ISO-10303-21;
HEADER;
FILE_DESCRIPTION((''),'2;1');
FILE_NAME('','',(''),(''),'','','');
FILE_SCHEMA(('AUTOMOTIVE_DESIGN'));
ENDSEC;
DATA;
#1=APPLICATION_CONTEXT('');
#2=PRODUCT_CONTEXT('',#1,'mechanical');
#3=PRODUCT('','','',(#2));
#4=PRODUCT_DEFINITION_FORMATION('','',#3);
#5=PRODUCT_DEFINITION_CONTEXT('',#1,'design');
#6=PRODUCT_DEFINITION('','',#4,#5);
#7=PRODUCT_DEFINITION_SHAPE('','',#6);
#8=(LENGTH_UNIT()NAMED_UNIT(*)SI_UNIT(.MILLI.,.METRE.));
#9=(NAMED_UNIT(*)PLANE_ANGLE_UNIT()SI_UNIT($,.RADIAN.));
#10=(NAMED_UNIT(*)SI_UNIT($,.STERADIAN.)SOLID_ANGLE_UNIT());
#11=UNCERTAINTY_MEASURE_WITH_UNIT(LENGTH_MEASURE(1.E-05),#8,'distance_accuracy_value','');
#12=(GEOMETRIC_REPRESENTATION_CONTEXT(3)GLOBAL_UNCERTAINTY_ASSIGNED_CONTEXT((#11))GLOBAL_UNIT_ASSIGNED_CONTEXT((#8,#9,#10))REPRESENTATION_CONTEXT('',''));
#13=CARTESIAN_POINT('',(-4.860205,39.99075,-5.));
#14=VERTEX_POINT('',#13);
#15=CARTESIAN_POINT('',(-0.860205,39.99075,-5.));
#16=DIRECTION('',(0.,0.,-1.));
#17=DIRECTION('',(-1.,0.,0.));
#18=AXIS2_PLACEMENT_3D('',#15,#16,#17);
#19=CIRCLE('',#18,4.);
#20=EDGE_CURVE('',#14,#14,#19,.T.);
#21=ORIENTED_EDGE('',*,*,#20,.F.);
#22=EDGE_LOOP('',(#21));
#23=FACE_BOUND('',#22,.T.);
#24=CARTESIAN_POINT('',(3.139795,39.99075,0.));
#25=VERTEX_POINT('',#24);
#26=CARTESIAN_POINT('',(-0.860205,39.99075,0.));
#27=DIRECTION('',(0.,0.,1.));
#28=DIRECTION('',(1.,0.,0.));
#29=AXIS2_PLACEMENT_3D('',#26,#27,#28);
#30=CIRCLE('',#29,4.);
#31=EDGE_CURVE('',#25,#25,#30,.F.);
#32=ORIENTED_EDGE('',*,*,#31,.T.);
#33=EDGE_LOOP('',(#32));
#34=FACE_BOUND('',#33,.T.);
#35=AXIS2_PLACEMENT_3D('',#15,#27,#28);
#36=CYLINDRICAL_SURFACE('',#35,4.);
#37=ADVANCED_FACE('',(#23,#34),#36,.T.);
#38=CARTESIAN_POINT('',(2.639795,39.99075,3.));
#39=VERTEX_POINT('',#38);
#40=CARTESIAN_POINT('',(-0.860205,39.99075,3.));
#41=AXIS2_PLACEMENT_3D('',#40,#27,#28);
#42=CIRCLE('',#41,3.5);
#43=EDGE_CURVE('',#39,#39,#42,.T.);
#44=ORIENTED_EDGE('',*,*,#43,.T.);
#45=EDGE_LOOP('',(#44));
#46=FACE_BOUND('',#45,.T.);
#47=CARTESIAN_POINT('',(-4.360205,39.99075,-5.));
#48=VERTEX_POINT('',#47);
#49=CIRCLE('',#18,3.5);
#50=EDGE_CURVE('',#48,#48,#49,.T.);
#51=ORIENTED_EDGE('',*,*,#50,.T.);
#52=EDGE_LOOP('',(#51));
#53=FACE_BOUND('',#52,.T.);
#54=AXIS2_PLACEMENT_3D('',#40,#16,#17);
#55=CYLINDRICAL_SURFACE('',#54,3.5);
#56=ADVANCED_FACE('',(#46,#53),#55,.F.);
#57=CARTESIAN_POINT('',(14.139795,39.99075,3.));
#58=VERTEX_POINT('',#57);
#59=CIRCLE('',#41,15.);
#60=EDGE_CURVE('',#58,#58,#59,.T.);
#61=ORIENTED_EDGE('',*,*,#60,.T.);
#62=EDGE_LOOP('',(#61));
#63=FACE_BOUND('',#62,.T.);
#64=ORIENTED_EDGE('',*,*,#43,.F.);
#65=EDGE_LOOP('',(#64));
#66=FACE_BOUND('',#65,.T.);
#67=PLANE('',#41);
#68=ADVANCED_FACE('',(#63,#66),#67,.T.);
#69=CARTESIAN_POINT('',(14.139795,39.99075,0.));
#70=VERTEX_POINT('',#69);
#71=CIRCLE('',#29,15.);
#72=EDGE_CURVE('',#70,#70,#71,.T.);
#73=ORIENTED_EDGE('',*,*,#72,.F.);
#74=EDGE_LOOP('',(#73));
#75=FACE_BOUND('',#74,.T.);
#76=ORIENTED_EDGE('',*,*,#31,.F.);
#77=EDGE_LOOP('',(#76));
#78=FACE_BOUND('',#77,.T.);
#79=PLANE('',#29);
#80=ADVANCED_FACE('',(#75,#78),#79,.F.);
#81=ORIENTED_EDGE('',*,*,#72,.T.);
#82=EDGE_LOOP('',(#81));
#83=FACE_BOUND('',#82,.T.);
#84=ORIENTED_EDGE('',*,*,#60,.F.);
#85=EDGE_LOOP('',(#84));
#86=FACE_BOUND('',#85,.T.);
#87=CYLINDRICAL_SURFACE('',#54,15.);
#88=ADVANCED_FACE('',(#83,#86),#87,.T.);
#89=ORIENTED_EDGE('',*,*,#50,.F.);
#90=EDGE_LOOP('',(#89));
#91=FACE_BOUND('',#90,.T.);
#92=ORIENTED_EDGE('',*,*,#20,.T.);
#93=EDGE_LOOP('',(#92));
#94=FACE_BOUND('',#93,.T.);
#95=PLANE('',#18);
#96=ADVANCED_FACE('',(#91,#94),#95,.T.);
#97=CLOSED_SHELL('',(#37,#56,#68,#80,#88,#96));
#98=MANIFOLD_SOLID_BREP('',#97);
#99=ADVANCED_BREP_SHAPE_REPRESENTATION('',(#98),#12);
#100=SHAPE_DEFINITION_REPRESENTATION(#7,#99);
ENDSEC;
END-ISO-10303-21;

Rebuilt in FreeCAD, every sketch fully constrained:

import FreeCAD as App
import Part
import Sketcher
Q = App.Units.Quantity

doc = App.newDocument("Part")
body = doc.addObject("PartDesign::Body", "Body")

# Sketch on XY plane
sketch1 = doc.addObject("Sketcher::SketchObject", "Sketch")
body.addObject(sketch1)
sketch1.AttachmentSupport = (doc.XY_Plane, [""])
sketch1.MapMode = "FlatFace"
sketch1.addGeometry([
    Part.Circle(App.Vector(-0.9, 40, 0), App.Vector(0, 0, 1), 15),
    Part.Circle(App.Vector(-0.9, 40, 0), App.Vector(0, 0, 1), 4),
], False)
sketch1.addConstraint([
    Sketcher.Constraint("Coincident", 1, 3, 0, 3),
    Sketcher.Constraint("Diameter", 0, Q("30 mm")),
    Sketcher.Constraint("Diameter", 1, Q("8 mm")),
    Sketcher.Constraint("DistanceY", -1, 1, 0, 3, Q("39.99075 mm")),
    Sketcher.Constraint("DistanceX", 0, 3, -1, 1, Q("0.860205 mm")),
])
pad1 = doc.addObject("PartDesign::Pad", "Pad")
body.addObject(pad1)
pad1.Profile = sketch1
pad1.Length = 3
body2 = doc.addObject("PartDesign::Body", "Body001")

# Sketch on XY plane
sketch2 = doc.addObject("Sketcher::SketchObject", "Sketch001")
body2.addObject(sketch2)
sketch2.AttachmentSupport = (doc.getObject("XY_Plane001"), [""])
sketch2.MapMode = "FlatFace"
sketch2.addGeometry([
    Part.Circle(App.Vector(-0.9, 40, 0), App.Vector(0, 0, 1), 4),
    Part.Circle(App.Vector(-0.9, 40, 0), App.Vector(0, 0, 1), 3.5),
], False)
sketch2.addConstraint([
    Sketcher.Constraint("Coincident", 1, 3, 0, 3),
    Sketcher.Constraint("Diameter", 0, Q("8 mm")),
    Sketcher.Constraint("Diameter", 1, Q("7 mm")),
    Sketcher.Constraint("DistanceY", -1, 1, 0, 3, Q("39.99075 mm")),
    Sketcher.Constraint("DistanceX", 0, 3, -1, 1, Q("0.860205 mm")),
])
pad2 = doc.addObject("PartDesign::Pad", "Pad001")
body2.addObject(pad2)
pad2.Profile = sketch2
pad2.Length = 5
pad2.Reversed = True
body.AllowCompound = True
doc.recompute()

boolean = doc.addObject("PartDesign::Boolean", "Boolean")
body.addObject(boolean)
boolean.Type = "Fuse"
boolean.addObjects([body2])

# Sketch on XY plane
sketch3 = doc.addObject("Sketcher::SketchObject", "Sketch002")
body.addObject(sketch3)
sketch3.AttachmentSupport = (doc.XY_Plane, [""])
sketch3.MapMode = "FlatFace"
sketch3.addGeometry([
    Part.Circle(App.Vector(-0.9, 40, 0), App.Vector(0, 0, 1), 4),
    Part.Circle(App.Vector(-0.9, 40, 0), App.Vector(0, 0, 1), 3.5),
], False)
sketch3.addConstraint([
    Sketcher.Constraint("Coincident", 1, 3, 0, 3),
    Sketcher.Constraint("Diameter", 0, Q("8 mm")),
    Sketcher.Constraint("Diameter", 1, Q("7 mm")),
    Sketcher.Constraint("DistanceY", -1, 1, 0, 3, Q("39.99075 mm")),
    Sketcher.Constraint("DistanceX", 0, 3, -1, 1, Q("0.860205 mm")),
])
pad3 = doc.addObject("PartDesign::Pad", "Pad002")
body.addObject(pad3)
pad3.Profile = sketch3
pad3.Length = 3

doc.recompute()
